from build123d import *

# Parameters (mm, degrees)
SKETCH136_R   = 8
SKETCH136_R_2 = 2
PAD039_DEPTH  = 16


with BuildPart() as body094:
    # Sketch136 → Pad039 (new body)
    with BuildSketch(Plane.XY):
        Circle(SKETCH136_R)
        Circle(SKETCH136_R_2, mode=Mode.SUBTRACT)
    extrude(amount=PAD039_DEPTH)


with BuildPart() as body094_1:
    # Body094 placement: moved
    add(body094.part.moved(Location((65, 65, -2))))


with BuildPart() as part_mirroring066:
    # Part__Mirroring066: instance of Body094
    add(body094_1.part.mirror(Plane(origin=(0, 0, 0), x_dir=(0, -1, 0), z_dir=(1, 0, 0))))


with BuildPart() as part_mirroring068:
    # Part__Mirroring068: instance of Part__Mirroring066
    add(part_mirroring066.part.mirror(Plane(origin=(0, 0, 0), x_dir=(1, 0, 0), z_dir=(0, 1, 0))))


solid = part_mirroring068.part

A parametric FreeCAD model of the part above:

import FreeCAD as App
import Part
import Sketcher
Q = App.Units.Quantity

doc = App.newDocument("Part")
params = doc.addObject("Spreadsheet::Sheet", "Params")
for row, (alias, value) in enumerate([
    ("sketch1_diameter", "16 mm"),
    ("sketch1_diameter2", "4 mm"),
    ("pad1_length", "16 mm"),
], start=1):
    params.set(f"A{row}", alias)
    params.set(f"B{row}", "=" + value)
    params.setAlias(f"B{row}", alias)

body = doc.addObject("PartDesign::Body", "Body")

# Sketch on XY plane
sketch1 = body.newObject("Sketcher::SketchObject", "Sketch")
sketch1.AttachmentSupport = (doc.getObject("XY_Plane"), [""])
sketch1.MapMode = "FlatFace"
sketch1.addGeometry(Part.Circle(App.Vector(0, 0, 0), App.Vector(0, 0, 1), 8), False)
sketch1.addGeometry(Part.Circle(App.Vector(0, 0, 0), App.Vector(0, 0, 1), 2), False)
sketch1.addConstraint(Sketcher.Constraint("Coincident", 0, 3, -1, 1))
sketch1.addConstraint(Sketcher.Constraint("Coincident", 1, 3, -1, 1))
sketch1.addConstraint(Sketcher.Constraint("Diameter", 0, Q("16 mm")))
sketch1.addConstraint(Sketcher.Constraint("Diameter", 1, Q("4 mm")))
sketch1.setExpression("Constraints[2]", "Params.sketch1_diameter")
sketch1.setExpression("Constraints[3]", "Params.sketch1_diameter2")
pad1 = body.newObject("PartDesign::Pad", "Pad")
pad1.Profile = sketch1
pad1.setExpression("Length", "Params.pad1_length")
body2 = doc.addObject("PartDesign::Body", "Body001")
doc.recompute()

body.Placement = App.Placement(App.Vector(65, 65, -2), App.Rotation(App.Vector(0, 0, 1), 0))
boolean = body2.newObject("PartDesign::Boolean", "Boolean")
boolean.Type = "Fuse"
boolean.addObjects([body])
body3 = doc.addObject("PartDesign::Body", "Body002")
doc.recompute()

mirroring = doc.addObject("Part::Mirroring", "Mirroring")
mirroring.Source = body2
mirroring.Base = App.Vector(0, 0, 0)
mirroring.Normal = App.Vector(1, 0, 0)
body3.BaseFeature = mirroring
doc.recompute()
body4 = doc.addObject("PartDesign::Body", "Body003")
doc.recompute()

mirroring2 = doc.addObject("Part::Mirroring", "Mirroring001")
mirroring2.Source = body3
mirroring2.Base = App.Vector(0, 0, 0)
mirroring2.Normal = App.Vector(0, 1, 0)
body4.BaseFeature = mirroring2
doc.recompute()
body2.Visibility = False
body3.Visibility = False
mirroring.Visibility = False
mirroring2.Visibility = False

doc.recompute()
